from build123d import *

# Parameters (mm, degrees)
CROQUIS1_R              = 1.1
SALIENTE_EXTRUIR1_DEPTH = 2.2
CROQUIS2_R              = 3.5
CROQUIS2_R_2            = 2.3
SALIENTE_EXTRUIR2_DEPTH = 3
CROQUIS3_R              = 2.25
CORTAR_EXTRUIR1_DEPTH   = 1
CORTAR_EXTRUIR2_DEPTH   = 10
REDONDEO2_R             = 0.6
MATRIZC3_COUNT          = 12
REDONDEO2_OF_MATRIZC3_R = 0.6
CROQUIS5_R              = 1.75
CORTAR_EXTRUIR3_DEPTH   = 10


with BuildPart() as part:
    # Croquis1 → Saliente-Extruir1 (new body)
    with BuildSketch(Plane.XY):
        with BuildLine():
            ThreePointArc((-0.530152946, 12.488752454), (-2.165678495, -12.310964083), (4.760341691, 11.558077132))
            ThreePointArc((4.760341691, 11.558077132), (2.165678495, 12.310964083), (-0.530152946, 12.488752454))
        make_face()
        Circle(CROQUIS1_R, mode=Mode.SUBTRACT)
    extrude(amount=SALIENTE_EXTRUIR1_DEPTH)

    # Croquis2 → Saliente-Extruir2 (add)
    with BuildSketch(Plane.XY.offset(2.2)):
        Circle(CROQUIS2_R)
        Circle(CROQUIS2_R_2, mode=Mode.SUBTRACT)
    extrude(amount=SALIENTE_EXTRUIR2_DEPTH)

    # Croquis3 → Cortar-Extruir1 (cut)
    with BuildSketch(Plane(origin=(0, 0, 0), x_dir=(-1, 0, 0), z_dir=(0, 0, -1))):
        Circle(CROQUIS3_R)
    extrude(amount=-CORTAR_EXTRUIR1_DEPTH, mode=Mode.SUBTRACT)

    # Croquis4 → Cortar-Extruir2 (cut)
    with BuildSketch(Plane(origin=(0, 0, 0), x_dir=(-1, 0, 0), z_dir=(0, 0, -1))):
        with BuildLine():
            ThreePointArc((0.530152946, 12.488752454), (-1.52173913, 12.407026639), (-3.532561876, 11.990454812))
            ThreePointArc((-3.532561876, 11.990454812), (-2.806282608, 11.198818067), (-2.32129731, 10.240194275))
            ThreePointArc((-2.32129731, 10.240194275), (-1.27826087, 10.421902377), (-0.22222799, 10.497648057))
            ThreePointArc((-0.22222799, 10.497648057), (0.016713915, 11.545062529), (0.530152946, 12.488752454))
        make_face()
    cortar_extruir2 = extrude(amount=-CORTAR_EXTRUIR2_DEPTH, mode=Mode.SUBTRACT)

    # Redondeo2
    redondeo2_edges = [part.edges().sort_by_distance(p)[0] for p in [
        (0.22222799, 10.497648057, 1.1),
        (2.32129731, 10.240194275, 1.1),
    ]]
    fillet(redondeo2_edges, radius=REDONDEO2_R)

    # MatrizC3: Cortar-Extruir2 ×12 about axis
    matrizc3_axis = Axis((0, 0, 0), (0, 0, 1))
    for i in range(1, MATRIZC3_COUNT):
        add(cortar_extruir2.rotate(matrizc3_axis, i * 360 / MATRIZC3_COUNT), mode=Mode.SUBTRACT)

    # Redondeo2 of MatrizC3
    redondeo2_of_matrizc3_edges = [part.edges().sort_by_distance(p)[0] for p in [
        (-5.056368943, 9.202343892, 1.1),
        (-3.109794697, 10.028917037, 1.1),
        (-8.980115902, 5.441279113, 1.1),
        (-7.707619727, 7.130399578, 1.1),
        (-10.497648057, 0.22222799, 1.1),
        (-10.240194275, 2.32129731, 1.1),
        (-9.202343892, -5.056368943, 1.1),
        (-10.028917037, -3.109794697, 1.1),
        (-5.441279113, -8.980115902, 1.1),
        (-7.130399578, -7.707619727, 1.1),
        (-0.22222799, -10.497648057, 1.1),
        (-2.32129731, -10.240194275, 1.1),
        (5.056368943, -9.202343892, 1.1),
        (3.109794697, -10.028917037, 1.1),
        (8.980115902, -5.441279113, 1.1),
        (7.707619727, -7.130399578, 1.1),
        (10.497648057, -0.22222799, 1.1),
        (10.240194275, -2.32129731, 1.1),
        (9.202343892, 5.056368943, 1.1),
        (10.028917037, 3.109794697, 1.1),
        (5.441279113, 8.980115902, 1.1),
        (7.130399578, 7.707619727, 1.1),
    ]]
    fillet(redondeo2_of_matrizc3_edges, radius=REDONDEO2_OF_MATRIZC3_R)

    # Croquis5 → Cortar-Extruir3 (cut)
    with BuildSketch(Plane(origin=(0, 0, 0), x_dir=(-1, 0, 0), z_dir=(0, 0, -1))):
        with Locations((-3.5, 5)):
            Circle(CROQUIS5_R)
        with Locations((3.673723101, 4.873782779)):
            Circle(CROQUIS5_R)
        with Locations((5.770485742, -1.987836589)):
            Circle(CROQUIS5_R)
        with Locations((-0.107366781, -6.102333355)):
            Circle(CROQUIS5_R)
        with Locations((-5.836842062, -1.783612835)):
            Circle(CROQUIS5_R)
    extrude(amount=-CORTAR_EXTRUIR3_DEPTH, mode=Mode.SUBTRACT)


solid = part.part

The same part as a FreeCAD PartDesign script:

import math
import FreeCAD as App
import Part
import Sketcher


def edges_at(feature, points):
    """Names of the edges that pass closest to the given points."""
    edges = feature.Shape.Edges
    near = lambda p: min(range(len(edges)), key=lambda i: edges[i].distToShape(Part.Vertex(*p))[0])
    return sorted({f"Edge{near(p) + 1}" for p in points})

doc = App.newDocument("Part")
params = doc.addObject("Spreadsheet::Sheet", "Params")
for row, (alias, value) in enumerate([
    ("sketch1_diameter", "2.2 mm"),
    ("sketch1_radius", "12.5 mm"),
    ("pad1_length", "2.2 mm"),
    ("sketch2_diameter", "7 mm"),
    ("sketch2_diameter2", "4.6 mm"),
    ("pad2_length", "3 mm"),
    ("sketch3_diameter", "4.5 mm"),
    ("pocket1_length", "1 mm"),
    ("sketch4_radius", "12.5 mm"),
    ("sketch4_radius2", "10.5 mm"),
    ("pocket2_length", "10 mm"),
    ("fillet_radius", "0.6 mm"),
    ("fillet2_radius", "0.6 mm"),
    ("sketch5_diameter", "3.5 mm"),
    ("pocket3_length", "10 mm"),
], start=1):
    params.set(f"A{row}", alias)
    params.set(f"B{row}", "=" + value)
    params.setAlias(f"B{row}", alias)

body = doc.addObject("PartDesign::Body", "Body")

# Sketch on XY plane
sketch1 = body.newObject("Sketcher::SketchObject", "Sketch")
sketch1.AttachmentSupport = (doc.getObject("XY_Plane"), [""])
sketch1.MapMode = "FlatFace"
sketch1.addGeometry([
    Part.ArcOfCircle(Part.Circle(App.Vector(0, 0, 0), App.Vector(0, 0, 1), 12.5), math.radians(92), math.radians(428)),
    Part.ArcOfCircle(Part.Circle(App.Vector(0, 0, 0), App.Vector(0, 0, 1), 12.5), math.radians(68), math.radians(92)),
    Part.Circle(App.Vector(0, 0, 0), App.Vector(0, 0, 1), 1.1),
], False)
sketch1.addConstraint([
    Sketcher.Constraint("Tangent", 0, 1, 1, 2),
    Sketcher.Constraint("Coincident", 1, 1, 0, 2),
    Sketcher.Constraint("Coincident", 0, 3, -1, 1),
    Sketcher.Constraint("Coincident", 2, 3, -1, 1),
    Sketcher.Constraint("Diameter", 2, 2.2),
    Sketcher.Constraint("Radius", 0, 12.5),
    Sketcher.Constraint("DistanceX", -1, 1, 1, 1, 4.760342),
    Sketcher.Constraint("DistanceX", 0, 1, -1, 1, 0.530153),
])
sketch1.setExpression("Constraints[4]", "Params.sketch1_diameter")
sketch1.setExpression("Constraints[5]", "Params.sketch1_radius")
pad1 = body.newObject("PartDesign::Pad", "Pad")
pad1.Profile = sketch1
pad1.setExpression("Length", "Params.pad1_length")

# Sketch on XY plane
sketch2 = body.newObject("Sketcher::SketchObject", "Sketch001")
sketch2.AttachmentSupport = (doc.getObject("XY_Plane"), [""])
sketch2.MapMode = "FlatFace"
sketch2.AttachmentOffset = App.Placement(App.Vector(0, 0, 2.2), App.Rotation())
sketch2.addGeometry([
    Part.Circle(App.Vector(0, 0, 0), App.Vector(0, 0, 1), 3.5),
    Part.Circle(App.Vector(0, 0, 0), App.Vector(0, 0, 1), 2.3),
], False)
sketch2.addConstraint([
    Sketcher.Constraint("Coincident", 0, 3, -1, 1),
    Sketcher.Constraint("Coincident", 1, 3, -1, 1),
    Sketcher.Constraint("Diameter", 0, 7.0),
    Sketcher.Constraint("Diameter", 1, 4.6),
])
sketch2.setExpression("Constraints[2]", "Params.sketch2_diameter")
sketch2.setExpression("Constraints[3]", "Params.sketch2_diameter2")
pad2 = body.newObject("PartDesign::Pad", "Pad001")
pad2.Profile = sketch2
pad2.setExpression("Length", "Params.pad2_length")

# Sketch on XY plane
sketch3 = body.newObject("Sketcher::SketchObject", "Sketch002")
sketch3.AttachmentSupport = (doc.getObject("XY_Plane"), [""])
sketch3.MapMode = "FlatFace"
sketch3.addGeometry(Part.Circle(App.Vector(0, 0, 0), App.Vector(0, 0, 1), 2.2), False)
sketch3.addConstraint([
    Sketcher.Constraint("Coincident", 0, 3, -1, 1),
    Sketcher.Constraint("Diameter", 0, 4.5),
])
sketch3.setExpression("Constraints[1]", "Params.sketch3_diameter")
pocket1 = body.newObject("PartDesign::Pocket", "Pocket")
pocket1.Profile = sketch3
pocket1.setExpression("Length", "Params.pocket1_length")
pocket1.Reversed = True

# Sketch on XY plane
sketch4 = body.newObject("Sketcher::SketchObject", "Sketch003")
sketch4.AttachmentSupport = (doc.getObject("XY_Plane"), [""])
sketch4.MapMode = "FlatFace"
sketch4.addGeometry([
    Part.ArcOfCircle(Part.Circle(App.Vector(0, 0, 0), App.Vector(0, 0, 1), 12.5), math.radians(73.58), math.radians(92.43)),
    Part.ArcOfCircle(Part.Circle(App.Vector(6, 9, 0), App.Vector(0, 0, 1), 3.9), math.radians(130), math.radians(161)),
    Part.ArcOfCircle(Part.Circle(App.Vector(0, 0, 0), App.Vector(0, 0, 1), 10.5), math.radians(77.23), math.radians(88.79)),
    Part.ArcOfCircle(Part.Circle(App.Vector(-3.7, 10.2, 0), App.Vector(0, 0, 1), 3.9), math.radians(5), math.radians(36)),
], False)
sketch4.addConstraint([
    Sketcher.Constraint("Coincident", 0, 1, 1, 1),
    Sketcher.Constraint("Coincident", 1, 2, 2, 1),
    Sketcher.Constraint("Coincident", 2, 2, 3, 1),
    Sketcher.Constraint("Coincident", 3, 2, 0, 2),
    Sketcher.Constraint("Coincident", 0, 3, -1, 1),
    Sketcher.Constraint("Coincident", 2, 3, -1, 1),
    Sketcher.Constraint("Equal", 1, 3),
    Sketcher.Constraint("Radius", 0, 12.5),
    Sketcher.Constraint("Radius", 2, 10.5),
    Sketcher.Constraint("Radius", 1, 3.933232),
    Sketcher.Constraint("DistanceY", 3, 3, 0, 1, 1.835699),
    Sketcher.Constraint("DistanceX", 3, 2, 1, 3, 6.570701),
    Sketcher.Constraint("DistanceY", 1, 3, 3, 2, 3.528202),
    Sketcher.Constraint("DistanceY", -1, 1, 1, 3, 8.960551),
])
sketch4.setExpression("Constraints[7]", "Params.sketch4_radius")
sketch4.setExpression("Constraints[8]", "Params.sketch4_radius2")
pocket2 = body.newObject("PartDesign::Pocket", "Pocket001")
pocket2.Profile = sketch4
pocket2.setExpression("Length", "Params.pocket2_length")
pocket2.Reversed = True
doc.recompute()

fillet = body.newObject("PartDesign::Fillet", "Fillet")
fillet.Base = (pocket2, edges_at(pocket2, [(0.222, 10.498, 1.1), (2.321, 10.24, 1.1)]))
fillet.setExpression("Radius", "Params.fillet_radius")
doc.recompute()

polarpattern = body.newObject("PartDesign::PolarPattern", "PolarPattern")
polarpattern.Originals = [pocket2]
polarpattern.Axis = (doc.getObject("Z_Axis"), [""])
polarpattern.Angle = 360
polarpattern.Occurrences = 12
body.Tip = polarpattern
doc.recompute()

fillet2 = body.newObject("PartDesign::Fillet", "Fillet001")
fillet2.Base = (polarpattern, edges_at(polarpattern, [
    (-5.056, 9.202, 1.1),
    (-3.11, 10.029, 1.1),
    (-8.98, 5.441, 1.1),
    (-7.708, 7.13, 1.1),
    (-10.498, 0.222, 1.1),
    (-10.24, 2.321, 1.1),
    (-9.202, -5.056, 1.1),
    (-10.029, -3.11, 1.1),
    (-5.441, -8.98, 1.1),
    (-7.13, -7.708, 1.1),
    (-0.222, -10.498, 1.1),
    (-2.321, -10.24, 1.1),
    (5.056, -9.202, 1.1),
    (3.11, -10.029, 1.1),
    (8.98, -5.441, 1.1),
    (7.708, -7.13, 1.1),
    (10.498, -0.222, 1.1),
    (10.24, -2.321, 1.1),
    (9.202, 5.056, 1.1),
    (10.029, 3.11, 1.1),
    (5.441, 8.98, 1.1),
    (7.13, 7.708, 1.1),
]))
fillet2.setExpression("Radius", "Params.fillet2_radius")

# Sketch on XY plane
sketch5 = body.newObject("Sketcher::SketchObject", "Sketch004")
sketch5.AttachmentSupport = (doc.getObject("XY_Plane"), [""])
sketch5.MapMode = "FlatFace"
sketch5.addGeometry([
    Part.Circle(App.Vector(3.5, 5, 0), App.Vector(0, 0, 1), 1.8),  # 0
    Part.Circle(App.Vector(-3.7, 4.9, 0), App.Vector(0, 0, 1), 1.8),  # 1
    Part.Circle(App.Vector(-5.8, -2, 0), App.Vector(0, 0, 1), 1.8),  # 2
    Part.Circle(App.Vector(0.1, -6.1, 0), App.Vector(0, 0, 1), 1.8),  # 3
    Part.Circle(App.Vector(5.8, -1.8, 0), App.Vector(0, 0, 1), 1.8),  # 4
], False)
sketch5.addConstraint([
    Sketcher.Constraint("Equal", 0, 1),
    Sketcher.Constraint("Equal", 1, 2),
    Sketcher.Constraint("Equal", 2, 3),
    Sketcher.Constraint("Equal", 3, 4),
    Sketcher.Constraint("Diameter", 0, 3.5),
    Sketcher.Constraint("DistanceY", -1, 1, 0, 3, 5.0),
    Sketcher.Constraint("DistanceX", -1, 1, 0, 3, 3.5),
    Sketcher.Constraint("DistanceY", 2, 3, 1, 3, 6.861619),
    Sketcher.Constraint("DistanceX", 1, 3, 3, 3, 3.78109),
    Sketcher.Constraint("DistanceY", 3, 3, 4, 3, 4.318721),
    Sketcher.Constraint("DistanceX", 1, 3, -1, 1, 3.673723),
    Sketcher.Constraint("DistanceY", -1, 1, 1, 3, 4.873783),
    Sketcher.Constraint("DistanceX", 2, 3, -1, 1, 5.770486),
    Sketcher.Constraint("DistanceY", 3, 3, -1, 1, 6.102333),
    Sketcher.Constraint("DistanceX", -1, 1, 4, 3, 5.836842),
])
sketch5.setExpression("Constraints[4]", "Params.sketch5_diameter")
pocket3 = body.newObject("PartDesign::Pocket", "Pocket002")
pocket3.Profile = sketch5
pocket3.setExpression("Length", "Params.pocket3_length")
pocket3.Reversed = True

doc.recompute()
